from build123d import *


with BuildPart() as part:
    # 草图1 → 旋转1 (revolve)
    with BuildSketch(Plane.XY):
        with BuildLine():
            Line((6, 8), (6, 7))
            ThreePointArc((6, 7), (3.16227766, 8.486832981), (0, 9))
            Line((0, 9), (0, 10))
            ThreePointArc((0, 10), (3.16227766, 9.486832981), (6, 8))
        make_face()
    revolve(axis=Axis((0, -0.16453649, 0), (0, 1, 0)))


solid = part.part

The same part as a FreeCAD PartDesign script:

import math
import FreeCAD as App
import Part
import Sketcher
Q = App.Units.Quantity

doc = App.newDocument("Part")
params = doc.addObject("Spreadsheet::Sheet", "Params")
for row, (alias, value) in enumerate([
    ("sketch1_radius", "10 mm"),
    ("sketch1_height", "1 mm"),
    ("revolution_angle", "360 deg"),
], start=1):
    params.set(f"A{row}", alias)
    params.set(f"B{row}", "=" + value)
    params.setAlias(f"B{row}", alias)

body = doc.addObject("PartDesign::Body", "Body")

# Sketch on XY plane
sketch1 = body.newObject("Sketcher::SketchObject", "Sketch")
sketch1.AttachmentSupport = (doc.getObject("XY_Plane"), [""])
sketch1.MapMode = "FlatFace"
sketch1.addGeometry([
    Part.LineSegment(App.Vector(6, 7, 0), App.Vector(6, 8, 0)),
    Part.ArcOfCircle(Part.Circle(App.Vector(0, 0, 0), App.Vector(0, 0, 1), 10), math.radians(53), math.radians(90)),
    Part.LineSegment(App.Vector(0, 10, 0), App.Vector(0, 9, 0)),
    Part.ArcOfCircle(Part.Circle(App.Vector(0, -1, 0), App.Vector(0, 0, 1), 10), math.radians(53), math.radians(90)),
], False)
sketch1.addConstraint([
    Sketcher.Constraint("Coincident", 0, 2, 1, 1),
    Sketcher.Constraint("Coincident", 1, 2, 2, 1),
    Sketcher.Constraint("Coincident", 2, 2, 3, 2),
    Sketcher.Constraint("Coincident", 3, 1, 0, 1),
    Sketcher.Constraint("Vertical", 0),
    Sketcher.Constraint("Vertical", 2),
    Sketcher.Constraint("Coincident", 1, 3, -1, 1),
    Sketcher.Constraint("Equal", 1, 3),
    Sketcher.Constraint("PointOnObject", 3, 3, -2),
    Sketcher.Constraint("PointOnObject", 1, 2, -2),
    Sketcher.Constraint("Radius", 1, Q("10 mm")),
    Sketcher.Constraint("DistanceY", 0, 1, 0, 2, Q("1 mm")),
    Sketcher.Constraint("DistanceX", -1, 1, 0, 2, Q("6 mm")),
])
sketch1.setExpression("Constraints[10]", "Params.sketch1_radius")
sketch1.setExpression("Constraints[11]", "Params.sketch1_height")
revolution = body.newObject("PartDesign::Revolution", "Revolution")
revolution.Profile = sketch1
revolution.ReferenceAxis = (sketch1, ["V_Axis"])
revolution.setExpression("Angle", "Params.revolution_angle")

doc.recompute()
